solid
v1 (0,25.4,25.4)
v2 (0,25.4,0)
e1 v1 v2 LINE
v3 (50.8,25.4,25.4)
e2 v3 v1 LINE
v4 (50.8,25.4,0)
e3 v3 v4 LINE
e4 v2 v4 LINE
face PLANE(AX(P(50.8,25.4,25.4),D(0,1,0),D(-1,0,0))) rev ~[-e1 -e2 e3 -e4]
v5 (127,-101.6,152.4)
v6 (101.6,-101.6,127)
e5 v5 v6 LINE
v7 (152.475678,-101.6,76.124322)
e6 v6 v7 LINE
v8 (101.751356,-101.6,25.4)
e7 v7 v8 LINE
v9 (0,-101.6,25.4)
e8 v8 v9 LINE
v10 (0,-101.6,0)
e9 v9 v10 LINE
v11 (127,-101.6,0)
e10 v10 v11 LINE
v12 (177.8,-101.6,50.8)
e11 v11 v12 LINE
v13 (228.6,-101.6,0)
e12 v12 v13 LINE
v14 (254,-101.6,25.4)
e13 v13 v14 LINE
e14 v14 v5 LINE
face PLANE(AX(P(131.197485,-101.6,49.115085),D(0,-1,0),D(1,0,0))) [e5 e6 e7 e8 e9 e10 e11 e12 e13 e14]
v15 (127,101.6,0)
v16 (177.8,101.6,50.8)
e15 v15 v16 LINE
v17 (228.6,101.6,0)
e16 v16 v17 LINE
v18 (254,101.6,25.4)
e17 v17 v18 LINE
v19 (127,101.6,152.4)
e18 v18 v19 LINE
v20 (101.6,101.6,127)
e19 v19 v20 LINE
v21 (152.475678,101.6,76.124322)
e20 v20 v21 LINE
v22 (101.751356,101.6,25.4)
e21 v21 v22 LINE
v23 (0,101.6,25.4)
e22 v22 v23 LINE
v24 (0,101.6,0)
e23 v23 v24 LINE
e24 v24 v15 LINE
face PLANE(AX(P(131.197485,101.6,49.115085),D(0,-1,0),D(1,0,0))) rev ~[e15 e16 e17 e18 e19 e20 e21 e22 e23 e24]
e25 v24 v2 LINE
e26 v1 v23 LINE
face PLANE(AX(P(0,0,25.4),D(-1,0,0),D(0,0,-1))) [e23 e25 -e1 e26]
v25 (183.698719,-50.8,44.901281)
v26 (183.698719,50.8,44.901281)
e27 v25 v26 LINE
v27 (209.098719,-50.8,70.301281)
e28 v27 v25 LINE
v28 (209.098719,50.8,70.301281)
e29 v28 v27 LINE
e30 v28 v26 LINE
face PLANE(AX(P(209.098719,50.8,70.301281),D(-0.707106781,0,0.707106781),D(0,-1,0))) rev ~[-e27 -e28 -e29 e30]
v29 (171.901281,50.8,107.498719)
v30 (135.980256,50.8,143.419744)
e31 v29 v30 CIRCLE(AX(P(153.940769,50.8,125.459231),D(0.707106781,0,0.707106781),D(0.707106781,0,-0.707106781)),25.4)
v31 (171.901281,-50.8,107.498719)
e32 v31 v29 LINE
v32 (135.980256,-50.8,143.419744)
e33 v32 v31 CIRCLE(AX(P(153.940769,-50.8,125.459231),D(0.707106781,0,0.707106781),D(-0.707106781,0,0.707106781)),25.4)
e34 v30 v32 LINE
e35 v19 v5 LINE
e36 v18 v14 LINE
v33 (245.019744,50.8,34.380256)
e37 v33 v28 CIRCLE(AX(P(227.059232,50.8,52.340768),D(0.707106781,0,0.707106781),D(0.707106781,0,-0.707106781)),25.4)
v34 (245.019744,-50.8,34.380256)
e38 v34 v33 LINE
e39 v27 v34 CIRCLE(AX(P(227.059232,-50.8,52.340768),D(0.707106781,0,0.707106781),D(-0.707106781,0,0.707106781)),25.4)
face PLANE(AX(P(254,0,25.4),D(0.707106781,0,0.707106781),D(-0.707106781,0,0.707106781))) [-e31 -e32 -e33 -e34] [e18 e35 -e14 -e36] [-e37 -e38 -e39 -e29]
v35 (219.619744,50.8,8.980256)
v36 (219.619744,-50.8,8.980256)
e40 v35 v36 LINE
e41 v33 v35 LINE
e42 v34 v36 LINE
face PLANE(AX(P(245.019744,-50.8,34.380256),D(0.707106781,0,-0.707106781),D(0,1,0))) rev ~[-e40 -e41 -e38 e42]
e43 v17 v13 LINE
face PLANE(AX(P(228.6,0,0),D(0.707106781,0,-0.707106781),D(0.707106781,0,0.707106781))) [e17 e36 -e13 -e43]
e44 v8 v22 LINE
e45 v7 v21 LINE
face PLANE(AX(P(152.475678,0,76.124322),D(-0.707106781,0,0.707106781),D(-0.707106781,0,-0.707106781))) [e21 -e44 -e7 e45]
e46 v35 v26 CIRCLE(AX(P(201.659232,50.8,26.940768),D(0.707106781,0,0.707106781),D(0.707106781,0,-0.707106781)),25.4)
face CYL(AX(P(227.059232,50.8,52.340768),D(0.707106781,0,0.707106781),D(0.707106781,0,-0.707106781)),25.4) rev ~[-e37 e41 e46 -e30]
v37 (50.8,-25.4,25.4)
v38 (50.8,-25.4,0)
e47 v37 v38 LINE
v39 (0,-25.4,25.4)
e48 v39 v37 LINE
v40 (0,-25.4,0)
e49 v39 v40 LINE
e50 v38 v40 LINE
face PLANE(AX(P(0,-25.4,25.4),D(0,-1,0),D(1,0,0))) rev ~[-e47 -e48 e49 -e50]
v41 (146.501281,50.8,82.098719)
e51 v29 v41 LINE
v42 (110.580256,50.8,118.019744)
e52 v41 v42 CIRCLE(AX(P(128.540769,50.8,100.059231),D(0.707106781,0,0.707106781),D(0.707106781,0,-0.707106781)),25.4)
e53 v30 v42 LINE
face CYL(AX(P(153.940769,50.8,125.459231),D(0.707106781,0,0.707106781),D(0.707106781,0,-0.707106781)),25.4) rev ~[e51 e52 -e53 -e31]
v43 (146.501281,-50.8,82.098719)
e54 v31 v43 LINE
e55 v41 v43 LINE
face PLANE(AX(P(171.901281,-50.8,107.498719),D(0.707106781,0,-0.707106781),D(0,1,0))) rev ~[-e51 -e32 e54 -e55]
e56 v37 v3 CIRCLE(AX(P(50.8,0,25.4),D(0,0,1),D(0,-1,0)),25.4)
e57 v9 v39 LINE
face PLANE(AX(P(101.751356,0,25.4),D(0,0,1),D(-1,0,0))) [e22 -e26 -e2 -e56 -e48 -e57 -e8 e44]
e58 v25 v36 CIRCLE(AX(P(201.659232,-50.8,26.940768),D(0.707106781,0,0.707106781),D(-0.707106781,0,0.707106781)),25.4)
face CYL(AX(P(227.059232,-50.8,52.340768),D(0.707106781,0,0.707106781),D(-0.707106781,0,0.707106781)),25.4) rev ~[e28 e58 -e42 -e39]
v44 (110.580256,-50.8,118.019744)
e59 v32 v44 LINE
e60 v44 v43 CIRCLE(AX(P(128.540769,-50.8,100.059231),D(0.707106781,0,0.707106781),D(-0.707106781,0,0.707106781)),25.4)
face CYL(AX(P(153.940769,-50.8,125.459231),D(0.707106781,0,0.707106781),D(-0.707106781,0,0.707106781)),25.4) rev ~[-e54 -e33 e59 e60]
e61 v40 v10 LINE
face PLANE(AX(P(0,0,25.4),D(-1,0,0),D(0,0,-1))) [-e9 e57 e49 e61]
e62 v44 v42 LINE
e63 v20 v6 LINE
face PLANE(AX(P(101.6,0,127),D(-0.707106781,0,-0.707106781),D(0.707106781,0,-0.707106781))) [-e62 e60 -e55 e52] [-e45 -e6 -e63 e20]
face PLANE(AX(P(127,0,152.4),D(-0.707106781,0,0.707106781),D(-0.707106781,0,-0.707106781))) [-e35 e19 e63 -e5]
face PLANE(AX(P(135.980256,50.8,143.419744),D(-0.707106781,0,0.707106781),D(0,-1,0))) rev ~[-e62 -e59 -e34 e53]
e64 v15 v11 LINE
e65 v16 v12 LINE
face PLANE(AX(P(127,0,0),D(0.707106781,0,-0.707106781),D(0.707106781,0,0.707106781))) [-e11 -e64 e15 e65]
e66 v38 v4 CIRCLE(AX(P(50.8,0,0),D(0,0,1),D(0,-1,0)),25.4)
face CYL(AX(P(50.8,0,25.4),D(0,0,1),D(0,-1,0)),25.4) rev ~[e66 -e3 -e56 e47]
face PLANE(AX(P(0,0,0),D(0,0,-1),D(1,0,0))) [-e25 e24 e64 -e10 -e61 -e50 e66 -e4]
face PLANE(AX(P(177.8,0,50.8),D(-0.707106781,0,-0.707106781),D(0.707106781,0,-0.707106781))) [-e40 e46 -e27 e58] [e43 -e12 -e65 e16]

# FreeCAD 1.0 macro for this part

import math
import FreeCAD as App
import Part
import Sketcher

V = App.Vector
Q = App.Units.Quantity


def add_polygon(sketch, points):
    """Adds a closed chain of lines whose ends are joined by coincident constraints."""
    first, n = sketch.GeometryCount, len(points)
    for a, b in zip(points, points[1:] + points[:1]):
        sketch.addGeometry(Part.LineSegment(App.Vector(*a, 0), App.Vector(*b, 0)), False)
    for i in range(n):
        sketch.addConstraint(Sketcher.Constraint("Coincident", first + i, 2, first + (i + 1) % n, 1))

doc = App.newDocument("Part")
params = doc.addObject("Spreadsheet::Sheet", "Params")
for row, (alias, value) in enumerate([
    ("sketch1_width", "5 in"),
    ("sketch1_height", "1 in"),
    ("pad1_length", "8 in"),
    ("sketch2_radius", "1 in"),
    ("sketch3_radius", "1 in"),
    ("sketch3_width", "4 in"),
    ("pocket2_length", "3 in"),
], start=1):
    params.set(f"A{row}", alias)
    params.set(f"B{row}", "=" + value)
    params.setAlias(f"B{row}", alias)

body = doc.addObject("PartDesign::Body", "Body")

# Sketch on XZ plane
sketch1 = body.newObject("Sketcher::SketchObject", "Sketch")
sketch1.AttachmentSupport = (doc.getObject("XZ_Plane"), [""])
sketch1.MapMode = "FlatFace"
add_polygon(sketch1, [(0, 25), (0, 0), (127, 0), (178, 51), (229, 0), (254, 25), (127, 152), (102, 127), (152, 76), (102, 25)])  # lines 0-9
sketch1.addConstraint([
    Sketcher.Constraint("Vertical", 0),
    Sketcher.Constraint("Horizontal", 1),
    Sketcher.Constraint("Horizontal", 9),
    Sketcher.Constraint("Coincident", 0, 2, -1, 1),
    Sketcher.Constraint("PointOnObject", 3, 2, -1),
    Sketcher.Constraint("Perpendicular", 2, 3),
    Sketcher.Constraint("Perpendicular", 3, 4),
    Sketcher.Constraint("Perpendicular", 4, 5),
    Sketcher.Constraint("Perpendicular", 5, 6),
    Sketcher.Constraint("Perpendicular", 6, 7),
    Sketcher.Constraint("Perpendicular", 7, 8),
    Sketcher.Constraint("Horizontal", 4, 2, 8, 2),
    Sketcher.Constraint("Vertical", 1, 2, 5, 2),
    Sketcher.Constraint("Equal", 2, 3),
    Sketcher.Constraint("Equal", 4, 6),
    Sketcher.Constraint("DistanceX", 1, 1, 1, 2, Q("5 in")),
    Sketcher.Constraint("DistanceY", 0, 2, 0, 1, Q("1 in")),
    Sketcher.Constraint("DistanceX", -1, 1, 2, 2, Q("7 in")),
    Sketcher.Constraint("DistanceX", 9, 2, 9, 1, Q("101.751356 mm")),
])
sketch1.setExpression("Constraints[25]", "Params.sketch1_width")
sketch1.setExpression("Constraints[26]", "Params.sketch1_height")
pad1 = body.newObject("PartDesign::Pad", "Pad")
pad1.Profile = sketch1
pad1.setExpression("Length", "Params.pad1_length")
pad1.Midplane = True

# Sketch on XY plane
sketch2 = body.newObject("Sketcher::SketchObject", "Sketch001")
sketch2.AttachmentSupport = (doc.getObject("XY_Plane"), [""])
sketch2.MapMode = "FlatFace"
sketch2.AttachmentOffset = App.Placement(V(0, 0, 1 * 25.4), App.Rotation())
sketch2.addGeometry([
    Part.LineSegment(V(51, 25, 0), V(0, 25, 0)),
    Part.LineSegment(V(0, 25, 0), V(0, -25, 0)),
    Part.LineSegment(V(0, -25, 0), V(51, -25, 0)),
    Part.ArcOfCircle(Part.Circle(V(51, 0, 0), V(0, 0, 1), 25), math.radians(-90), math.radians(90)),
], False)
sketch2.addConstraint([
    Sketcher.Constraint("Coincident", 0, 2, 1, 1),
    Sketcher.Constraint("Coincident", 1, 2, 2, 1),
    Sketcher.Constraint("Tangent", 2, 2, 3, 1),
    Sketcher.Constraint("Tangent", 3, 2, 0, 1),
    Sketcher.Constraint("Horizontal", 0),
    Sketcher.Constraint("Vertical", 1),
    Sketcher.Constraint("Horizontal", 2),
    Sketcher.Constraint("Symmetric", 0, 2, 1, 2, -1, 1),
    Sketcher.Constraint("Equal", 2, 1),
    Sketcher.Constraint("Radius", 3, Q("1 in")),
])
sketch2.setExpression("Constraints[9]", "Params.sketch2_radius")
pocket1 = body.newObject("PartDesign::Pocket", "Pocket")
pocket1.Profile = sketch2
pocket1.Type = "ThroughAll"

# Sketch on an angled plane
sketch3 = body.newObject("Sketcher::SketchObject", "Sketch002")
sketch3.Placement = App.Placement(V(139.7, 0, 139.7), App.Rotation(V(0, 1, 0), V(-0.707106781, 0, 0.707106781), V(0.707106781, 0, 0.707106781), "ZXY"))
sketch3.addGeometry([
    Part.ArcOfCircle(Part.Circle(V(51, -20, 0), V(0, 0, 1), 25), math.radians(-90), math.radians(90)),  # 0
    Part.LineSegment(V(51, 5, 0), V(-51, 5, 0)),  # 1
    Part.ArcOfCircle(Part.Circle(V(-51, -20, 0), V(0, 0, 1), 25), math.radians(90), math.radians(270)),  # 2
    Part.LineSegment(V(-51, -46, 0), V(51, -46, 0)),  # 3
    Part.LineSegment(V(-51, -149, 0), V(51, -149, 0)),  # 4
    Part.ArcOfCircle(Part.Circle(V(51, -124, 0), V(0, 0, 1), 25), math.radians(-90), math.radians(90)),  # 5
    Part.LineSegment(V(51, -98, 0), V(-51, -98, 0)),  # 6
    Part.ArcOfCircle(Part.Circle(V(-51, -124, 0), V(0, 0, 1), 25), math.radians(90), math.radians(270)),  # 7
], False)
sketch3.addConstraint([
    Sketcher.Constraint("Tangent", 0, 2, 1, 1),
    Sketcher.Constraint("Tangent", 1, 2, 2, 1),
    Sketcher.Constraint("Tangent", 2, 2, 3, 1),
    Sketcher.Constraint("Tangent", 3, 2, 0, 1),
    Sketcher.Constraint("Tangent", 4, 2, 5, 1),
    Sketcher.Constraint("Tangent", 5, 2, 6, 1),
    Sketcher.Constraint("Tangent", 6, 2, 7, 1),
    Sketcher.Constraint("Tangent", 7, 2, 4, 1),
    Sketcher.Constraint("Horizontal", 1),
    Sketcher.Constraint("Horizontal", 3),
    Sketcher.Constraint("Horizontal", 4),
    Sketcher.Constraint("Horizontal", 6),
    Sketcher.Constraint("Equal", 2, 5),
    Sketcher.Constraint("Vertical", 0, 3, 5, 3),
    Sketcher.Constraint("Vertical", 2, 3, 7, 3),
    Sketcher.Constraint("Radius", 0, Q("1 in")),
    Sketcher.Constraint("DistanceX", 1, 2, 1, 1, Q("4 in")),
    Sketcher.Constraint("DistanceX", -1, 1, 0, 3, Q("2 in")),
    Sketcher.Constraint("DistanceY", 5, 3, -1, 1, Q("123.54461 mm")),
    Sketcher.Constraint("DistanceY", -1, 1, 1, 2, Q("5.260512 mm")),
])
sketch3.setExpression("Constraints[15]", "Params.sketch3_radius")
sketch3.setExpression("Constraints[16]", "Params.sketch3_width")
pocket2 = body.newObject("PartDesign::Pocket", "Pocket001")
pocket2.Profile = sketch3
pocket2.setExpression("Length", "Params.pocket2_length")

doc.recompute()
